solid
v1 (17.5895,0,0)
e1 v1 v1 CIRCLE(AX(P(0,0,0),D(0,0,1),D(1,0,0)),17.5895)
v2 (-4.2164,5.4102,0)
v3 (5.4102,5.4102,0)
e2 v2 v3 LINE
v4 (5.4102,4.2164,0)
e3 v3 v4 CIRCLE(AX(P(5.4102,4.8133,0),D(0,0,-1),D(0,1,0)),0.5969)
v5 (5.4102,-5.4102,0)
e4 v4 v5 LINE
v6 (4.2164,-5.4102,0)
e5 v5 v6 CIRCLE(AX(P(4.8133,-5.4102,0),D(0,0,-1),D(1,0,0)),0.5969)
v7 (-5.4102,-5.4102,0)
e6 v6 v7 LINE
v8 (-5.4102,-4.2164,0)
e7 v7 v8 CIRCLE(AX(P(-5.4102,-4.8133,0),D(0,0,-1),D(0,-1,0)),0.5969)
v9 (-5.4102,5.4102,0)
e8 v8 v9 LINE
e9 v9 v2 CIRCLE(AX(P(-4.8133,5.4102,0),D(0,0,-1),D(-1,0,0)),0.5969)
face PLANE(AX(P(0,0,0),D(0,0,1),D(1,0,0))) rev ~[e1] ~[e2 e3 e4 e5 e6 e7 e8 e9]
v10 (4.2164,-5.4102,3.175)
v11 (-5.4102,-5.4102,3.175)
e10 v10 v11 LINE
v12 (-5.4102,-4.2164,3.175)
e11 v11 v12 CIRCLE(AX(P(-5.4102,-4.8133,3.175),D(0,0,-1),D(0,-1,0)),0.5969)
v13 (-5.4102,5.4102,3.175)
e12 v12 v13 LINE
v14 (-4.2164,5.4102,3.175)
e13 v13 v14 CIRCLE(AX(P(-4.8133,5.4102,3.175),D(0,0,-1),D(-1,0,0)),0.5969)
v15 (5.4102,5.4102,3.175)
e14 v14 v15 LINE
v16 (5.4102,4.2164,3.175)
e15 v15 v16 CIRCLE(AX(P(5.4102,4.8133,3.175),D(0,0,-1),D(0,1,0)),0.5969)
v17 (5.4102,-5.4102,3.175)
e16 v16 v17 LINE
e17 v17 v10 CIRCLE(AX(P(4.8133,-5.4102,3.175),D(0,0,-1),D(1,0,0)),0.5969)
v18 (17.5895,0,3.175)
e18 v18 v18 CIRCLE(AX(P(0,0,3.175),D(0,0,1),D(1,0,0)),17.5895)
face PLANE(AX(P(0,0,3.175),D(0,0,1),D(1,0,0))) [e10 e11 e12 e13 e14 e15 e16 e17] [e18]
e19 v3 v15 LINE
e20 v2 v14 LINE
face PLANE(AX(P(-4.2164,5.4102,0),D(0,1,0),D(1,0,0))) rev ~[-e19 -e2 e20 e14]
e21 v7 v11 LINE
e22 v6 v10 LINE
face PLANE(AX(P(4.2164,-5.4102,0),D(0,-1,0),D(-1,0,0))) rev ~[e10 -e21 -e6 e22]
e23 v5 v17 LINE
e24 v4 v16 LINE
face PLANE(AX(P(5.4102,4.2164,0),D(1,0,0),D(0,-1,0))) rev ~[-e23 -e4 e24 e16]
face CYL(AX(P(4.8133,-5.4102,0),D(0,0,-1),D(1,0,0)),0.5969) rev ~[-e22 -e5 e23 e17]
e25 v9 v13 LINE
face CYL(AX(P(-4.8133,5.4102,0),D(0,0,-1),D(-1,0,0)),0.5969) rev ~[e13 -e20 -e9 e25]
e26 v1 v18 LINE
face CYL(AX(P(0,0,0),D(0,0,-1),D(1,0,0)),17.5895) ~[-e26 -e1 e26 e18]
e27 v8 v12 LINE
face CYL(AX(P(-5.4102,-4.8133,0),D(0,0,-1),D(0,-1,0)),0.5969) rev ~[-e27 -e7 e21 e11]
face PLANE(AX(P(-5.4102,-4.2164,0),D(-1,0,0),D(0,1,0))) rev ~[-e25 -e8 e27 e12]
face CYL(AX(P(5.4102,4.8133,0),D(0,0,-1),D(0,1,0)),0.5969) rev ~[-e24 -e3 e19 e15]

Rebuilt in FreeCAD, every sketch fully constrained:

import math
import FreeCAD as App
import Part
import Sketcher
from FreeCAD import Vector
Q = App.Units.Quantity

doc = App.newDocument("Part")
body = doc.addObject("PartDesign::Body", "Body")

sketch1 = body.newObject("Sketcher::SketchObject", "Sketch")
sketch1.AttachmentSupport = (doc.getObject("XY_Plane"), [""])
sketch1.MapMode = "FlatFace"
sketch1.addGeometry(Part.Circle(Vector(0, 0, 0), Vector(0, 0, 1), 17.6), False)
sketch1.addGeometry(Part.ArcOfCircle(Part.Circle(Vector(-4.8, 5.4, 0), Vector(0, 0, 1), 0.6), math.radians(0), math.radians(180)), False)
sketch1.addGeometry(Part.LineSegment(Vector(-4.2, 5.4, 0), Vector(5.4, 5.4, 0)), False)
sketch1.addGeometry(Part.ArcOfCircle(Part.Circle(Vector(5.4, 4.8, 0), Vector(0, 0, 1), 0.6), math.radians(-90), math.radians(90)), False)
sketch1.addGeometry(Part.LineSegment(Vector(5.4, 4.2, 0), Vector(5.4, -5.4, 0)), False)
sketch1.addGeometry(Part.ArcOfCircle(Part.Circle(Vector(4.8, -5.4, 0), Vector(0, 0, 1), 0.6), math.radians(180), math.radians(360)), False)
sketch1.addGeometry(Part.LineSegment(Vector(4.2, -5.4, 0), Vector(-5.4, -5.4, 0)), False)
sketch1.addGeometry(Part.ArcOfCircle(Part.Circle(Vector(-5.4, -4.8, 0), Vector(0, 0, 1), 0.6), math.radians(90), math.radians(270)), False)
sketch1.addGeometry(Part.LineSegment(Vector(-5.4, -4.2, 0), Vector(-5.4, 5.4, 0)), False)
sketch1.addConstraint(Sketcher.Constraint("Coincident", 1, 1, 2, 1))
sketch1.addConstraint(Sketcher.Constraint("Tangent", 2, 2, 3, 2))
sketch1.addConstraint(Sketcher.Constraint("Coincident", 3, 1, 4, 1))
sketch1.addConstraint(Sketcher.Constraint("Tangent", 4, 2, 5, 2))
sketch1.addConstraint(Sketcher.Constraint("Coincident", 5, 1, 6, 1))
sketch1.addConstraint(Sketcher.Constraint("Tangent", 6, 2, 7, 2))
sketch1.addConstraint(Sketcher.Constraint("Coincident", 7, 1, 8, 1))
sketch1.addConstraint(Sketcher.Constraint("Tangent", 8, 2, 1, 2))
sketch1.addConstraint(Sketcher.Constraint("Horizontal", 2))
sketch1.addConstraint(Sketcher.Constraint("Vertical", 4))
sketch1.addConstraint(Sketcher.Constraint("Horizontal", 6))
sketch1.addConstraint(Sketcher.Constraint("Vertical", 8))
sketch1.addConstraint(Sketcher.Constraint("Coincident", 0, 3, -1, 1))
sketch1.addConstraint(Sketcher.Constraint("Equal", 1, 3))
sketch1.addConstraint(Sketcher.Constraint("Equal", 3, 5))
sketch1.addConstraint(Sketcher.Constraint("Equal", 5, 7))
sketch1.addConstraint(Sketcher.Constraint("Symmetric", 1, 3, 5, 3, -1, 1))
sketch1.addConstraint(Sketcher.Constraint("Symmetric", 3, 3, 7, 3, -1, 1))
sketch1.addConstraint(Sketcher.Constraint("Symmetric", 4, 2, 6, 2, -2))
sketch1.addConstraint(Sketcher.Constraint("Equal", 6, 4))
sketch1.addConstraint(Sketcher.Constraint("Diameter", 0, Q("1.385 in")))
sketch1.addConstraint(Sketcher.Constraint("Radius", 1, Q("0.0235 in")))
sketch1.addConstraint(Sketcher.Constraint("DistanceX", 2, 1, 2, 2, Q("0.379 in")))
pad1 = body.newObject("PartDesign::Pad", "Pad")
pad1.Profile = sketch1
pad1.Length = Q("0.125 in")

doc.recompute()
